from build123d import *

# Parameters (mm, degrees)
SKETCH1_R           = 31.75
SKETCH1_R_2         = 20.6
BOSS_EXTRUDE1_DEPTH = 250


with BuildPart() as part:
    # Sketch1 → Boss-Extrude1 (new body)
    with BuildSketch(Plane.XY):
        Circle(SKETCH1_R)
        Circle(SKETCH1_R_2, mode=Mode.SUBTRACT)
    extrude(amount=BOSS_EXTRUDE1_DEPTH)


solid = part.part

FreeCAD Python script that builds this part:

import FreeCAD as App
import Part
import Sketcher
Q = App.Units.Quantity

doc = App.newDocument("Part")
body = doc.addObject("PartDesign::Body", "Body")

sketch1 = body.newObject("Sketcher::SketchObject", "Sketch")
sketch1.AttachmentSupport = (doc.getObject("XY_Plane"), [""])
sketch1.MapMode = "FlatFace"
sketch1.addGeometry([
    Part.Circle(App.Vector(0, 0, 0), App.Vector(0, 0, 1), 32),
    Part.Circle(App.Vector(0, 0, 0), App.Vector(0, 0, 1), 21),
], False)
sketch1.addConstraint([
    Sketcher.Constraint("Coincident", 0, 3, -1, 1),
    Sketcher.Constraint("Coincident", 1, 3, -1, 1),
    Sketcher.Constraint("Diameter", 0, Q("63.5 mm")),
    Sketcher.Constraint("Diameter", 1, Q("41.2 mm")),
])
pad1 = body.newObject("PartDesign::Pad", "Pad")
pad1.Profile = sketch1
pad1.Length = 250

doc.recompute()
